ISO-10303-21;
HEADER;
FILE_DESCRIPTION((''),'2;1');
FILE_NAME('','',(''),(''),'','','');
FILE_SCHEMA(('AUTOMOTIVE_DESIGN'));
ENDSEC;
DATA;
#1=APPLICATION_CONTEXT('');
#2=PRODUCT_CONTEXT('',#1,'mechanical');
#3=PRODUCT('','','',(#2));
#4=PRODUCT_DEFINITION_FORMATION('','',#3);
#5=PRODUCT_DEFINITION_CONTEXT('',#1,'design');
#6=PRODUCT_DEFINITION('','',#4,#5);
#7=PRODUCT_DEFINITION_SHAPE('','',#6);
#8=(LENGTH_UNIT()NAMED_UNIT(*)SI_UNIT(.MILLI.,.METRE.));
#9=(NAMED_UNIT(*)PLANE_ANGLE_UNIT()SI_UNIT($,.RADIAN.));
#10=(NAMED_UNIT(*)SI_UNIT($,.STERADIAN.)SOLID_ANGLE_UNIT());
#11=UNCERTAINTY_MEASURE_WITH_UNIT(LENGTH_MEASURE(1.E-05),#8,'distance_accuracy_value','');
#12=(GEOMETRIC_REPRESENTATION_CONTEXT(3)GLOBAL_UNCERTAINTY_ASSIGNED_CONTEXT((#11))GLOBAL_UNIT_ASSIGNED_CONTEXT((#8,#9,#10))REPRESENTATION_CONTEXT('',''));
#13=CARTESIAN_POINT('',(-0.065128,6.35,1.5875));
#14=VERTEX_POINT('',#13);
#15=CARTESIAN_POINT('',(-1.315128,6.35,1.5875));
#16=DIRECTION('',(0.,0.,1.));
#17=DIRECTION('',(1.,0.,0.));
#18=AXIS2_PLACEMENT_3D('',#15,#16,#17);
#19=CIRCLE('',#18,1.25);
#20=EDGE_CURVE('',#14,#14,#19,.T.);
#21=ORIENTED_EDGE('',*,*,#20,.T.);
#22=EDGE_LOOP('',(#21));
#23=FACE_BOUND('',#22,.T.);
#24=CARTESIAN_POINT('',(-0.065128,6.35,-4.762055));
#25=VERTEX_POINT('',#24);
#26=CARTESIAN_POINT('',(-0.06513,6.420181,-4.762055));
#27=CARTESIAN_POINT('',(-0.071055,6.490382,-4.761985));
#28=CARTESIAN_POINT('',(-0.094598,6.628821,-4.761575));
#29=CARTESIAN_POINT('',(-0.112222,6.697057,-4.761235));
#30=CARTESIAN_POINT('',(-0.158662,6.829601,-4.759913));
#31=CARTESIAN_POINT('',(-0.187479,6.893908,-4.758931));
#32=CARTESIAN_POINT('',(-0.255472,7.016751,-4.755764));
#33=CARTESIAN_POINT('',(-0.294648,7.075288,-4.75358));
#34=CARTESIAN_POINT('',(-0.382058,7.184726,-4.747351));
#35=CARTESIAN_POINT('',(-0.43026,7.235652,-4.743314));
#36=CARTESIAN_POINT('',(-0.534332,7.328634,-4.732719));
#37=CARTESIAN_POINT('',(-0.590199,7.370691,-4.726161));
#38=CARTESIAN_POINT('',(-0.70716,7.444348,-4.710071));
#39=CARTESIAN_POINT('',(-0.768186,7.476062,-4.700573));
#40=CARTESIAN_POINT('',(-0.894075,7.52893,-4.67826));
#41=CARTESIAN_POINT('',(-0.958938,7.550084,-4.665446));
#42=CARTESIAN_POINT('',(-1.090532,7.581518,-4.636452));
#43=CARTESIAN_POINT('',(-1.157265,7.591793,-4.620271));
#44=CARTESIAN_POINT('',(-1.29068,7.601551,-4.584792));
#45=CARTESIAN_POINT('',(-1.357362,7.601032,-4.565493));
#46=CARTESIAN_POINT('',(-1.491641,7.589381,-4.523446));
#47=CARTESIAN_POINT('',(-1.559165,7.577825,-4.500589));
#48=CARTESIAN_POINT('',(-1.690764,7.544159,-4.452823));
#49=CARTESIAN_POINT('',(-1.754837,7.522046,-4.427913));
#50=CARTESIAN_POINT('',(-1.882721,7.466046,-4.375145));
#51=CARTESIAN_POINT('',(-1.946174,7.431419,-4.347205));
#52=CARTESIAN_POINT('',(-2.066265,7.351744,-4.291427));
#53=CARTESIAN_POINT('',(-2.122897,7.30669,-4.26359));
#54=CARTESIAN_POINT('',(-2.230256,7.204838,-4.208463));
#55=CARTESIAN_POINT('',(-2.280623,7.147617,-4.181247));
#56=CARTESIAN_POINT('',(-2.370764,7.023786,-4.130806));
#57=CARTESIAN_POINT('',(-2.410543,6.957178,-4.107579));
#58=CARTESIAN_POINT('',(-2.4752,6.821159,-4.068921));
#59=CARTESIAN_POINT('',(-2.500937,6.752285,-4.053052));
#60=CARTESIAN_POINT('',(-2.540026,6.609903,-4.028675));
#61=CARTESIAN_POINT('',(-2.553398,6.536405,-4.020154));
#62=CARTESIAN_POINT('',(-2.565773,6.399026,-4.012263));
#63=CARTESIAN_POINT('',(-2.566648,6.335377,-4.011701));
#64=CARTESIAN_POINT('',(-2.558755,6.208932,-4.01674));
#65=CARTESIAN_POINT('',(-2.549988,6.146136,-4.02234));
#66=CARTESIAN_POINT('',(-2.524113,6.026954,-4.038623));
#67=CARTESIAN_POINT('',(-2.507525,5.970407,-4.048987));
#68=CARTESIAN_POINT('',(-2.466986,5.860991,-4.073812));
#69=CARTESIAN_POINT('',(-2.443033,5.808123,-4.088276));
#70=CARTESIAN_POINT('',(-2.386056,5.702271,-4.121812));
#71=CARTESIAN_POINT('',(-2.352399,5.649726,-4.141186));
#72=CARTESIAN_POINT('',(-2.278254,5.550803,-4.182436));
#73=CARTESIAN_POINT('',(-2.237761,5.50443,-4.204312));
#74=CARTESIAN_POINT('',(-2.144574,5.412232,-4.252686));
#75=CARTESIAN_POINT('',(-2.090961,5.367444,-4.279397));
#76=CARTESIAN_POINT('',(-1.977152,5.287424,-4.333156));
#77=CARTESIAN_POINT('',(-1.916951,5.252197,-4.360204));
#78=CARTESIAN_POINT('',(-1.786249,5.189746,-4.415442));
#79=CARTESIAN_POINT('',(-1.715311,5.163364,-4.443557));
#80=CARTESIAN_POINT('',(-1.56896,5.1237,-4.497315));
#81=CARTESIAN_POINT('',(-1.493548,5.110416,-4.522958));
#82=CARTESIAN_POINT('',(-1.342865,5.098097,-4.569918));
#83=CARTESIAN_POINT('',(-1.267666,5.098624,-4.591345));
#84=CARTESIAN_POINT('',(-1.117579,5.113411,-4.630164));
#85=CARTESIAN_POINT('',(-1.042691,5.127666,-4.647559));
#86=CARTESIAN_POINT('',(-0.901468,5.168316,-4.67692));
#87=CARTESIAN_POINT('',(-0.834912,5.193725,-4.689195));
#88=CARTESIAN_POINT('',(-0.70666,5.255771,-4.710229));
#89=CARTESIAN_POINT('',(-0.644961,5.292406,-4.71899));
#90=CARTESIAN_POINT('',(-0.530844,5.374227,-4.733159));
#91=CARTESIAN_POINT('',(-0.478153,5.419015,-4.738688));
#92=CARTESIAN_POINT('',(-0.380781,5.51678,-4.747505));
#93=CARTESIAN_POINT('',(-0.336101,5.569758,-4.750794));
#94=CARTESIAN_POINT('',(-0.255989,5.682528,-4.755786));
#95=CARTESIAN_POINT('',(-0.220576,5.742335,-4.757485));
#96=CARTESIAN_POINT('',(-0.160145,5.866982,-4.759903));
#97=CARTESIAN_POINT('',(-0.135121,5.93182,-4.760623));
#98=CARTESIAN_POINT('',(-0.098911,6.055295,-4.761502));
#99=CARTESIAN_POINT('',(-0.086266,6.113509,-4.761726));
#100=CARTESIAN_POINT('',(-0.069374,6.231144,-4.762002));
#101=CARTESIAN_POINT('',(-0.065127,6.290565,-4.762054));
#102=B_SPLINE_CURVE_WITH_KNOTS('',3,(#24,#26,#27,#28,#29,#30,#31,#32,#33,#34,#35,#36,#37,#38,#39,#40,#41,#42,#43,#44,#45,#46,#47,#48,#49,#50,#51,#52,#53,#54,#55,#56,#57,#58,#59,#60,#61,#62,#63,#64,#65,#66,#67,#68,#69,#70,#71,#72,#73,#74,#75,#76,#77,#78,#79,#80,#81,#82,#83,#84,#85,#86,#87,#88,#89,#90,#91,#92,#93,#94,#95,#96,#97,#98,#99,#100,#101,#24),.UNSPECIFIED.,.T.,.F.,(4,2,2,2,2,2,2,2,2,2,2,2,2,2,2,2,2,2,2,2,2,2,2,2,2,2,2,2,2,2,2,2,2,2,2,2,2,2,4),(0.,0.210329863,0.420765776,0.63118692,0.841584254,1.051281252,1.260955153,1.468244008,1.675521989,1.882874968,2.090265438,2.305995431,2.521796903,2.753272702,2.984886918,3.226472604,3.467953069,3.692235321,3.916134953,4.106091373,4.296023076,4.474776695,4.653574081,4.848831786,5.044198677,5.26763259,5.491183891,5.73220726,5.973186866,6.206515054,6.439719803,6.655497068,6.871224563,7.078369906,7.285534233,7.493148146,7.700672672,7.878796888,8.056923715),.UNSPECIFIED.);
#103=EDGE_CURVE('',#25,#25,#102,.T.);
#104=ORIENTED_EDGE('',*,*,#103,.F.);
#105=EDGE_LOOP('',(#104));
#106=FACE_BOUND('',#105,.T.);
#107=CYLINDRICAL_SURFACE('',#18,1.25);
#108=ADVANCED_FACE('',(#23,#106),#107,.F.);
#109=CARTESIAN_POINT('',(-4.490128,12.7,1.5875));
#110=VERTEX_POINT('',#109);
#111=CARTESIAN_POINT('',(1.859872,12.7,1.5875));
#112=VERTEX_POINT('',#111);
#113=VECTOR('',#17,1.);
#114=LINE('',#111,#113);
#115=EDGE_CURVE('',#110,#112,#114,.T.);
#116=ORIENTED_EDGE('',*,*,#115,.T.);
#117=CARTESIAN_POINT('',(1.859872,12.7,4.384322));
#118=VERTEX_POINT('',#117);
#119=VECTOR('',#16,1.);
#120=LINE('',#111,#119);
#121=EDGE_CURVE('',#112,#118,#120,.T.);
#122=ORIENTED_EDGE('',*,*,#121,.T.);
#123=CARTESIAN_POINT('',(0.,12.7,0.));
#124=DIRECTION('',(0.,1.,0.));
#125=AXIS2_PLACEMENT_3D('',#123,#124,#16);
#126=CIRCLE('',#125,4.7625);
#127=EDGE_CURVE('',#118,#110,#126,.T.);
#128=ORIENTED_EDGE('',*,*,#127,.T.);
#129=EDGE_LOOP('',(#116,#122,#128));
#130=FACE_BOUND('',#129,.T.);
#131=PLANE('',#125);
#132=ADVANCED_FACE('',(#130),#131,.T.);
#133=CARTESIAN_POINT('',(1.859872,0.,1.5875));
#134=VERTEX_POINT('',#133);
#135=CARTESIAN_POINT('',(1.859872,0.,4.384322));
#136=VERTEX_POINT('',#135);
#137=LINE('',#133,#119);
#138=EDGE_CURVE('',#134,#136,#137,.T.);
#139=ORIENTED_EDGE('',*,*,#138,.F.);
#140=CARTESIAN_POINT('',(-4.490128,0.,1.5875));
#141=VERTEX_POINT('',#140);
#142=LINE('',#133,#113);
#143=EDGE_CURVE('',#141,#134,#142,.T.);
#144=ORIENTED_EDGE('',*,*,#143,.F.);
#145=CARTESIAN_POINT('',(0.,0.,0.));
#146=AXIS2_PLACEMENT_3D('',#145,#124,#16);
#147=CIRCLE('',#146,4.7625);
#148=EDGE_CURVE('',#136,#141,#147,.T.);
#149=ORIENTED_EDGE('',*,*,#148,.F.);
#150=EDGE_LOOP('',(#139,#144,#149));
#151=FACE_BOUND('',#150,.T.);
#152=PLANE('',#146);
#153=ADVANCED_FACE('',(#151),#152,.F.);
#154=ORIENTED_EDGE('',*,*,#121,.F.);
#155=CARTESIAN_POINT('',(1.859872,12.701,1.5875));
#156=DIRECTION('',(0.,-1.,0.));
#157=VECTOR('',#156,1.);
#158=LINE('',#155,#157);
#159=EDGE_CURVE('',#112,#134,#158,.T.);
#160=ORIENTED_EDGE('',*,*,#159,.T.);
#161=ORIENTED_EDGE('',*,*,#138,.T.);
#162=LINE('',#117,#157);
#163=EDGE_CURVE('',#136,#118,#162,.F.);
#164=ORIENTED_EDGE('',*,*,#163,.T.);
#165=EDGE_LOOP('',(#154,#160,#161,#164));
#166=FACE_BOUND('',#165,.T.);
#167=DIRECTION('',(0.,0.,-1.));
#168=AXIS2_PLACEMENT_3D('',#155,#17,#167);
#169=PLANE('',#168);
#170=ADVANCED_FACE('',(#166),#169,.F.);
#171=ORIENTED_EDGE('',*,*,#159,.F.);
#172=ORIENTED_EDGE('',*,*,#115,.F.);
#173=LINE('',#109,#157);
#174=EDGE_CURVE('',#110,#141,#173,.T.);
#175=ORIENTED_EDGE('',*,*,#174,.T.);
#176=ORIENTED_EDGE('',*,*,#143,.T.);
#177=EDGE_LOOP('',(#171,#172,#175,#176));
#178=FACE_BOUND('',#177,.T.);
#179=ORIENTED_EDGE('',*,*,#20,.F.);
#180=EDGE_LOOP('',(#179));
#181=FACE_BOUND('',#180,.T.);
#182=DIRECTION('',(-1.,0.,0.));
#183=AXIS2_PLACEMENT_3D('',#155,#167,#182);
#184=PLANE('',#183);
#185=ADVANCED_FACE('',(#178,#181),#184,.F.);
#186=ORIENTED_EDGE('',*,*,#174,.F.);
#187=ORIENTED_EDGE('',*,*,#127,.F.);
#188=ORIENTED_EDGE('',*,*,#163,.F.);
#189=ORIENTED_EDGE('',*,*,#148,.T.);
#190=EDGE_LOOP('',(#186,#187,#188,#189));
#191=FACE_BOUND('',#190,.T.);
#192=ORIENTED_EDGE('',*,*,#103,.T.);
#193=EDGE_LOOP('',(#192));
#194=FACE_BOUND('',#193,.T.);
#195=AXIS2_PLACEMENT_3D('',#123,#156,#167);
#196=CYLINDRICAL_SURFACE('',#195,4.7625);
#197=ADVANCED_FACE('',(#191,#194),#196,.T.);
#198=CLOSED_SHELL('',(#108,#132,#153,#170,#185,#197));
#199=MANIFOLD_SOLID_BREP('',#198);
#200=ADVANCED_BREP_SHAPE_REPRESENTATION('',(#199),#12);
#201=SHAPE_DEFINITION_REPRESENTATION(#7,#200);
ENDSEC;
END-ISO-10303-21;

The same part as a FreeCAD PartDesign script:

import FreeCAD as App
import Part
import Sketcher

V = App.Vector
Q = App.Units.Quantity


def add_polygon(sketch, points):
    """Adds a closed chain of lines whose ends are joined by coincident constraints."""
    first, n = sketch.GeometryCount, len(points)
    for a, b in zip(points, points[1:] + points[:1]):
        sketch.addGeometry(Part.LineSegment(App.Vector(*a, 0), App.Vector(*b, 0)), False)
    for i in range(n):
        sketch.addConstraint(Sketcher.Constraint("Coincident", first + i, 2, first + (i + 1) % n, 1))

doc = App.newDocument("Part")
body = doc.addObject("PartDesign::Body", "Body")

# Sketch on XZ plane
sketch1 = body.newObject("Sketcher::SketchObject", "Sketch")
sketch1.AttachmentSupport = (doc.getObject("XZ_Plane"), [""])
sketch1.MapMode = "FlatFace"
sketch1.addGeometry(Part.Circle(V(0, 0, 0), V(0, 0, 1), 4.7625), False)
sketch1.addConstraint([
    Sketcher.Constraint("Coincident", 0, 3, -1, 1),
    Sketcher.Constraint("Diameter", 0, Q("0.375 in")),
])
pad1 = body.newObject("PartDesign::Pad", "Pad")
pad1.Profile = sketch1
pad1.Length = Q("0.5 in")
pad1.Reversed = True

# Sketch on XZ plane
sketch2 = body.newObject("Sketcher::SketchObject", "Sketch001")
sketch2.AttachmentSupport = (doc.getObject("XZ_Plane"), [""])
sketch2.MapMode = "FlatFace"
add_polygon(sketch2, [(-4.490128, 4.7625), (-4.490128, 1.5875), (1.859872, 1.5875), (1.859872, 4.7625)])  # lines 0-3
sketch2.addConstraint([
    Sketcher.Constraint("Vertical", 0),
    Sketcher.Constraint("Horizontal", 1),
    Sketcher.Constraint("Vertical", 2),
    Sketcher.Constraint("Horizontal", 3),
    Sketcher.Constraint("DistanceX", 1, 1, 1, 2, Q("0.25 in")),
    Sketcher.Constraint("DistanceY", 0, 2, 0, 1, Q("0.125 in")),
    Sketcher.Constraint("DistanceY", -1, 1, 0, 2, Q("0.0625 in")),
    Sketcher.Constraint("DistanceX", 0, 2, -1, 1, 4.490128),
])
pocket1 = body.newObject("PartDesign::Pocket", "Pocket")
pocket1.Profile = sketch2
pocket1.Type = "UpToFirst"

# Sketch on XY plane
sketch3 = body.newObject("Sketcher::SketchObject", "Sketch002")
sketch3.AttachmentSupport = (doc.getObject("XY_Plane"), [""])
sketch3.MapMode = "FlatFace"
sketch3.AttachmentOffset = App.Placement(V(0, 0, 0.0625 * 25.4), App.Rotation())
sketch3.addGeometry(Part.Circle(V(-1.315128, 6.35, 0), V(0, 0, 1), 1.25), False)
sketch3.addConstraint([
    Sketcher.Constraint("Diameter", 0, 2.5),
    Sketcher.Constraint("DistanceY", -1, 1, 0, 3, Q("0.25 in")),
    Sketcher.Constraint("DistanceX", 0, 3, -1, 1, 1.315128),
])
doc.recompute()
hole = body.newObject("PartDesign::Hole", "Hole")
hole.Profile = sketch3
hole.ThreadType = "None"
hole.Diameter = 2.5
hole.DepthType = "ThroughAll"

doc.recompute()
